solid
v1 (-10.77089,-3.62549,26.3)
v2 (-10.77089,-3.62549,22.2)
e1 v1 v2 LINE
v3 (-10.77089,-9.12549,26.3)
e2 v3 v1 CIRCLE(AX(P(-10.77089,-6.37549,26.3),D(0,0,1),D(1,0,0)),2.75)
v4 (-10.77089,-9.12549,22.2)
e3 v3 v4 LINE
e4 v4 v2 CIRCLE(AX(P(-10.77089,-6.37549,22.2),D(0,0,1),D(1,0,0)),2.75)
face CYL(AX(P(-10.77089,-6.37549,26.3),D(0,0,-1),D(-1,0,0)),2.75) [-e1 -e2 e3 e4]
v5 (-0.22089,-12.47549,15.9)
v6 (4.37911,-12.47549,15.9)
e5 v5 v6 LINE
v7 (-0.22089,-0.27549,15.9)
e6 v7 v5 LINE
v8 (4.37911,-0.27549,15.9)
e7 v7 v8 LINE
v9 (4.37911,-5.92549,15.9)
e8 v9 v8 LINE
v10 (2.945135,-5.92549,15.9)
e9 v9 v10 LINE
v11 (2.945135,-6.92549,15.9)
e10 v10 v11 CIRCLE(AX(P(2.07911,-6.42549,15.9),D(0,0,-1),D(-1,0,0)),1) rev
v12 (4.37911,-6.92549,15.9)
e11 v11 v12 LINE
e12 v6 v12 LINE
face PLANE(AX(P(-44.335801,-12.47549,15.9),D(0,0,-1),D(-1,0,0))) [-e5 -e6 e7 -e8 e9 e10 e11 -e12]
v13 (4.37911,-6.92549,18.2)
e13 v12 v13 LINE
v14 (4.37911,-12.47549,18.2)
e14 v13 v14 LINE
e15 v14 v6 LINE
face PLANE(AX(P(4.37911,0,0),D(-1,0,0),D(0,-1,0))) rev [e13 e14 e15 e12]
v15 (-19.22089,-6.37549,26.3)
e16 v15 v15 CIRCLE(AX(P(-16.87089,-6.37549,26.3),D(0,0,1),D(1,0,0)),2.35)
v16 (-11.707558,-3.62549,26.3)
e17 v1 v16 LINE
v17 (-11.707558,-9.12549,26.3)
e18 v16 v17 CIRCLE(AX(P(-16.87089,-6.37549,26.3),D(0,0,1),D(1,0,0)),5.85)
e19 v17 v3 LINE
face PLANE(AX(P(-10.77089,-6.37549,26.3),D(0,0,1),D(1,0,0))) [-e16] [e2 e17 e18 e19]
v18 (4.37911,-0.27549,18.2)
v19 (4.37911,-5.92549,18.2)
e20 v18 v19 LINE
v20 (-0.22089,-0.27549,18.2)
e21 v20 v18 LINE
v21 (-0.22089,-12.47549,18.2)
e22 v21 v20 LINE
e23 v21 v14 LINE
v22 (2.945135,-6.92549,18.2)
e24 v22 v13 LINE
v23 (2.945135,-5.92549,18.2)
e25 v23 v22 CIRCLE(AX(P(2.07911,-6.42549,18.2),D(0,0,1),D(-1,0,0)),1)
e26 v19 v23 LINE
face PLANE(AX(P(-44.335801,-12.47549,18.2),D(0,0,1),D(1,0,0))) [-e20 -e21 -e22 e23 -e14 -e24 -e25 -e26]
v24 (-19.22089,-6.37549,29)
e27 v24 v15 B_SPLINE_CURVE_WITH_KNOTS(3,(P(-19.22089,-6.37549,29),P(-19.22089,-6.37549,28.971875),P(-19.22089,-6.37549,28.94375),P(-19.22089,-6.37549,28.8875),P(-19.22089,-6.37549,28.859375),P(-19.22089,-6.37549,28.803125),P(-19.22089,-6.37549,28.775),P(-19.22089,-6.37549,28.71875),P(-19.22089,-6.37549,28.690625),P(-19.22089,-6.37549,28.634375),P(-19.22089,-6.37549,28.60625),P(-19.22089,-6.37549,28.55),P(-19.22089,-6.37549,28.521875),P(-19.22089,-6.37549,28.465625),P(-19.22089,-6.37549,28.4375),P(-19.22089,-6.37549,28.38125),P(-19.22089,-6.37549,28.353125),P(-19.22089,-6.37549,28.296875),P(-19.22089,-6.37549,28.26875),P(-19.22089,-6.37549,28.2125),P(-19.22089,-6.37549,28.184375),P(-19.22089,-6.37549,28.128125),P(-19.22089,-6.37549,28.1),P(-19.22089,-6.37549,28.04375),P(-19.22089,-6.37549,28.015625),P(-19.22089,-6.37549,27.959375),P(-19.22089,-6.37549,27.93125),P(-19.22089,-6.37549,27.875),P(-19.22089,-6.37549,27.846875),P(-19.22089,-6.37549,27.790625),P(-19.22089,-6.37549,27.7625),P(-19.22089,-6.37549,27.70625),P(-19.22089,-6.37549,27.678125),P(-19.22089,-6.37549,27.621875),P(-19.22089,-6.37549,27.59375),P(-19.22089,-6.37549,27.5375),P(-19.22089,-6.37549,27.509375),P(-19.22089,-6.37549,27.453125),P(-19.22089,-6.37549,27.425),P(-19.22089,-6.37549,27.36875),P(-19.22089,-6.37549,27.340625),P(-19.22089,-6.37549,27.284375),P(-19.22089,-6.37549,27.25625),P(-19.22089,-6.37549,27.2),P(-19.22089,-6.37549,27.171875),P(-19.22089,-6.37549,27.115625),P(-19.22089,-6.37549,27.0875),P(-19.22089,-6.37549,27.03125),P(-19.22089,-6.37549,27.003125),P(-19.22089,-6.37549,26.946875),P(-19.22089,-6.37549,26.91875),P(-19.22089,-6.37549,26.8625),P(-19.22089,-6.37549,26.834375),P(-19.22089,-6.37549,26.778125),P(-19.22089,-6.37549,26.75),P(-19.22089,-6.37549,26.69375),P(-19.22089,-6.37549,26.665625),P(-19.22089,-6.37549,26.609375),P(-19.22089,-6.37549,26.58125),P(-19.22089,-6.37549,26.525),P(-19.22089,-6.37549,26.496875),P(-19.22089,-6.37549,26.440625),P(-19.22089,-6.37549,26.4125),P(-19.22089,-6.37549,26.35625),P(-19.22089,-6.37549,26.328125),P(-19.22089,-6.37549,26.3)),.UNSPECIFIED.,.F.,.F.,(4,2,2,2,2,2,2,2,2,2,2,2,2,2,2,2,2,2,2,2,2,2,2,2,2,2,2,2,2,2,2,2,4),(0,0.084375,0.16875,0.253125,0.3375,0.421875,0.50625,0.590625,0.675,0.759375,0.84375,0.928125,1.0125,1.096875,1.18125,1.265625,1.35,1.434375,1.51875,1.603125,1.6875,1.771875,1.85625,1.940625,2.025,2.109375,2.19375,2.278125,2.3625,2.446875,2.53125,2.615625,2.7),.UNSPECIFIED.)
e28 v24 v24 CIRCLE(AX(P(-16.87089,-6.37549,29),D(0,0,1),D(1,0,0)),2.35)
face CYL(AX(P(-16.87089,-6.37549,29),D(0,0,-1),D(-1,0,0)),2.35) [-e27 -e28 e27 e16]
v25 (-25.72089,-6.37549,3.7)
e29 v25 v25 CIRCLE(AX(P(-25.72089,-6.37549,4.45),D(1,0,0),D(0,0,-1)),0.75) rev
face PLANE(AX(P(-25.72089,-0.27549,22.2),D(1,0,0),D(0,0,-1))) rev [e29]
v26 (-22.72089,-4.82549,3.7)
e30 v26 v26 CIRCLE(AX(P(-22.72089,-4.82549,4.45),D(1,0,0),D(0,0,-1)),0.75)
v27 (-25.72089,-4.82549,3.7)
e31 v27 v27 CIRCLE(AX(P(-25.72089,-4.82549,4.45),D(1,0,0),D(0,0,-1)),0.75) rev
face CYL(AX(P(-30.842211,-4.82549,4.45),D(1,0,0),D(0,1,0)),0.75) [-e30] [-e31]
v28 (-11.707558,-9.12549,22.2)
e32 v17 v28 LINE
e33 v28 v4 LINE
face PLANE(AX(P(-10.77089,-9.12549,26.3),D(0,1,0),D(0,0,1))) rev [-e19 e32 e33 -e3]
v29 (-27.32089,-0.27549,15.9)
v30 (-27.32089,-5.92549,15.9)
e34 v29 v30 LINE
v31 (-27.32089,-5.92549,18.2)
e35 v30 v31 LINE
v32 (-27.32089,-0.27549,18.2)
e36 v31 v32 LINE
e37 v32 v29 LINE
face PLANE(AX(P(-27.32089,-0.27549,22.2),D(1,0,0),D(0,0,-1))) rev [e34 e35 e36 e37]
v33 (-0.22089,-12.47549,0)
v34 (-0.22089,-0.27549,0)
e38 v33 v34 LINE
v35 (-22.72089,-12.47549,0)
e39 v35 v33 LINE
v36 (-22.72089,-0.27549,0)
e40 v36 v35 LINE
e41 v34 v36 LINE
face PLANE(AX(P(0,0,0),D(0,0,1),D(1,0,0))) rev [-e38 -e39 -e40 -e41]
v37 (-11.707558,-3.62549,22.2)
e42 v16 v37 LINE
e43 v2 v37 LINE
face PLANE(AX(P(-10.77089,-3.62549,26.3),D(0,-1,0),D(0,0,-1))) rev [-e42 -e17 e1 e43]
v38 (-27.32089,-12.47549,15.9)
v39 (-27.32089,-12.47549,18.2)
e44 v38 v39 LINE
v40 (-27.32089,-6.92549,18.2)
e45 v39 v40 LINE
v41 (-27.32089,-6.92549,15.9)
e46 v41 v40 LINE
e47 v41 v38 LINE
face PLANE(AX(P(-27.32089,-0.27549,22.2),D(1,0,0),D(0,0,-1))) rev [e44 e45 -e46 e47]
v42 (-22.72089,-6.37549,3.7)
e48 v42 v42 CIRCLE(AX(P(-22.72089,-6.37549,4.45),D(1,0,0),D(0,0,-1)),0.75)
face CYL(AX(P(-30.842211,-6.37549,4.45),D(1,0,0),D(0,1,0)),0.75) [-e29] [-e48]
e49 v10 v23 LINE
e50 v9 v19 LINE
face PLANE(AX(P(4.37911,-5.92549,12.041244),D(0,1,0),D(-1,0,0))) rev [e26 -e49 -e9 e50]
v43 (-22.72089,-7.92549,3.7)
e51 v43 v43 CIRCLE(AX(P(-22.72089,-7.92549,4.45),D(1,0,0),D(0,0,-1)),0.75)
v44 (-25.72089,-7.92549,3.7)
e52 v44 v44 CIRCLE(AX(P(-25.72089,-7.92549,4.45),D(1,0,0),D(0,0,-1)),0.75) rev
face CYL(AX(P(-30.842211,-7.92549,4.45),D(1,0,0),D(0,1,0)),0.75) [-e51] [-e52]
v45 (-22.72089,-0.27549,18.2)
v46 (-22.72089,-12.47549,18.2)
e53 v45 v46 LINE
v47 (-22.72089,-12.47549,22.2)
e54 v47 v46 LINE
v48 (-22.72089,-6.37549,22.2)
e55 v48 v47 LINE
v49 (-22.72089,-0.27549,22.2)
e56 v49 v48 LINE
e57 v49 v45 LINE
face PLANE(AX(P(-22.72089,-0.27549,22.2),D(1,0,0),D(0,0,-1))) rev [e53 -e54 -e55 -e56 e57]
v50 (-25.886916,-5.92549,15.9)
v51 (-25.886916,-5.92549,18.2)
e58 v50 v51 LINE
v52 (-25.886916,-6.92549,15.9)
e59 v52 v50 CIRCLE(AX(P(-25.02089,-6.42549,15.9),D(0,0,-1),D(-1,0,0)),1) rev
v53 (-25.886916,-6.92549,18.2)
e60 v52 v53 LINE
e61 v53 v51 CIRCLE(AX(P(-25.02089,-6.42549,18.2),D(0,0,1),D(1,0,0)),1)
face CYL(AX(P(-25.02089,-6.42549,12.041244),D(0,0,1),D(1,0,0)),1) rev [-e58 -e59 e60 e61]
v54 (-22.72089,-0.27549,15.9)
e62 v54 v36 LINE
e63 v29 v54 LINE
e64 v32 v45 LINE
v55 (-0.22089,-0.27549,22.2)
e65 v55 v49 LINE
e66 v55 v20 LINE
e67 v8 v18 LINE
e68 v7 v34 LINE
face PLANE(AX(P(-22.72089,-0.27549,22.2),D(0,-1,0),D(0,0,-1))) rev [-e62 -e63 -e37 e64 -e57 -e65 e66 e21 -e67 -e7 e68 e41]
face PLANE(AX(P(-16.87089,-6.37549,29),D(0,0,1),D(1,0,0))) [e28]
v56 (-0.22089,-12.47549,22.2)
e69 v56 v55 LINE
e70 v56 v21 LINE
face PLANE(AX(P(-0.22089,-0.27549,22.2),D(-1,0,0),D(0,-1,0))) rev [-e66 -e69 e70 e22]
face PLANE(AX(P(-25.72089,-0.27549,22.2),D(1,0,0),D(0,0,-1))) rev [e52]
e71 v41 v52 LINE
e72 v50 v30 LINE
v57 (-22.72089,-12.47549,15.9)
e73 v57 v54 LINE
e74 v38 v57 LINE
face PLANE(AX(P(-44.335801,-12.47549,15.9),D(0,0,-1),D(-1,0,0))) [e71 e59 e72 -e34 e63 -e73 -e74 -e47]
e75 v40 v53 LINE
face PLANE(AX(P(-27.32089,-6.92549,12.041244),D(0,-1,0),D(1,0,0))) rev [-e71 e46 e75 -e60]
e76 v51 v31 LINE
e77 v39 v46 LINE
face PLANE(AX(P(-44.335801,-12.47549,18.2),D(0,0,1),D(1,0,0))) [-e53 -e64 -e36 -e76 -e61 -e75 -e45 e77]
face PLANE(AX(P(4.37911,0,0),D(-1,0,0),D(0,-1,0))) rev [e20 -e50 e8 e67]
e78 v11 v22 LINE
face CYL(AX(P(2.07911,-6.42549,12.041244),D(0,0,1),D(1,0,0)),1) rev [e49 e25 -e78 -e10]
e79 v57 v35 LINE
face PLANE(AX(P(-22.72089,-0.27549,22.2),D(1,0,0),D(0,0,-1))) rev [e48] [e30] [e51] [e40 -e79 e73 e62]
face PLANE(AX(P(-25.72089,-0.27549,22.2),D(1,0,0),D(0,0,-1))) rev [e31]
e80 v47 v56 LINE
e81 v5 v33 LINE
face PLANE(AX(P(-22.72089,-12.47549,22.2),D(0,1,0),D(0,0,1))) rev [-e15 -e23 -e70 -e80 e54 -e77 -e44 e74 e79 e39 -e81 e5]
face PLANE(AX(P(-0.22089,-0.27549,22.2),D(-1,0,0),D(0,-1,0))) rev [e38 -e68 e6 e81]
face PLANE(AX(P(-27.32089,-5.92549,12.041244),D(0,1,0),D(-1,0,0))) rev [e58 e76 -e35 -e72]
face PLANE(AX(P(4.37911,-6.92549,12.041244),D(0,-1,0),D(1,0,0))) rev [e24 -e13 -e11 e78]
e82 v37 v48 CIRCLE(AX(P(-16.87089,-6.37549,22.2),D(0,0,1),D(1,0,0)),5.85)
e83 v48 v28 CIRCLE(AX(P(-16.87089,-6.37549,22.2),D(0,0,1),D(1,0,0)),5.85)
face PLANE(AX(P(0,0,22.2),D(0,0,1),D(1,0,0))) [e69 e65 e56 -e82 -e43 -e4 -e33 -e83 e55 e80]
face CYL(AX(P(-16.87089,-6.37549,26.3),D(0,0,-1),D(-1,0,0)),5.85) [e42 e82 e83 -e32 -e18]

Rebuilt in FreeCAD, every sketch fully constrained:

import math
import FreeCAD as App
import Part
import Sketcher

V = App.Vector
Q = App.Units.Quantity


def add_polygon(sketch, points):
    """Adds a closed chain of lines whose ends are joined by coincident constraints."""
    first, n = sketch.GeometryCount, len(points)
    for a, b in zip(points, points[1:] + points[:1]):
        sketch.addGeometry(Part.LineSegment(App.Vector(*a, 0), App.Vector(*b, 0)), False)
    for i in range(n):
        sketch.addConstraint(Sketcher.Constraint("Coincident", first + i, 2, first + (i + 1) % n, 1))

doc = App.newDocument("Part")
body = doc.addObject("PartDesign::Body", "Body")

sketch1 = body.newObject("Sketcher::SketchObject", "Sketch")
sketch1.AttachmentSupport = (doc.getObject("XY_Plane"), [""])
sketch1.MapMode = "FlatFace"
add_polygon(sketch1, [(-23, 0), (-23, -12), (0, -12), (0, 0)])
sketch1.addConstraint([
    Sketcher.Constraint("Vertical", 0),
    Sketcher.Constraint("Horizontal", 1),
    Sketcher.Constraint("Vertical", 2),
    Sketcher.Constraint("Horizontal", 3),
    Sketcher.Constraint("DistanceX", 1, 1, 1, 2, Q("22.5 mm")),
    Sketcher.Constraint("DistanceY", 0, 2, 0, 1, Q("12.2 mm")),
    Sketcher.Constraint("DistanceX", 0, 2, -1, 1, Q("22.72089 mm")),
    Sketcher.Constraint("DistanceY", 0, 2, -1, 1, Q("12.47549 mm")),
])
pad1 = body.newObject("PartDesign::Pad", "Pad")
pad1.Profile = sketch1
pad1.Length = 22.2

sketch2 = body.newObject("Sketcher::SketchObject", "Sketch001")
sketch2.AttachmentSupport = (doc.getObject("YZ_Plane"), [""])
sketch2.MapMode = "FlatFace"
sketch2.AttachmentOffset = App.Placement(V(0, 0, -0.22089), App.Rotation())
add_polygon(sketch2, [(-0.3, 18.2), (-12.5, 18.2), (-12.5, 15.9), (-0.3, 15.9)])
sketch2.addConstraint([
    Sketcher.Constraint("Horizontal", 0),
    Sketcher.Constraint("Vertical", 1),
    Sketcher.Constraint("Horizontal", 2),
    Sketcher.Constraint("Vertical", 3),
    Sketcher.Constraint("DistanceX", 0, 2, 0, 1, Q("12.2 mm")),
    Sketcher.Constraint("DistanceY", 1, 2, 1, 1, Q("2.3 mm")),
    Sketcher.Constraint("DistanceY", -1, 1, 0, 2, Q("18.2 mm")),
    Sketcher.Constraint("DistanceX", 0, 2, -1, 1, Q("12.47549 mm")),
])
pad2 = body.newObject("PartDesign::Pad", "Pad001")
pad2.Profile = sketch2
pad2.Type = "TwoLengths"
pad2.Length = 4.6
pad2.Length2 = 27.1

sketch3 = body.newObject("Sketcher::SketchObject", "Sketch002")
sketch3.AttachmentSupport = (doc.getObject("XY_Plane"), [""])
sketch3.MapMode = "FlatFace"
sketch3.AttachmentOffset = App.Placement(V(0, 0, 22.2), App.Rotation())
sketch3.addGeometry([
    Part.LineSegment(V(-11.7, -9.1, 0), V(-10.8, -9.1, 0)),
    Part.ArcOfCircle(Part.Circle(V(-10.8, -6.4, 0), V(0, 0, 1), 2.8), math.radians(-90), math.radians(90)),
    Part.LineSegment(V(-10.8, -3.6, 0), V(-11.7, -3.6, 0)),
    Part.ArcOfCircle(Part.Circle(V(-16.9, -6.4, 0), V(0, 0, 1), 5.8), math.radians(28), math.radians(332)),
], False)
sketch3.addConstraint([
    Sketcher.Constraint("Tangent", 0, 2, 1, 1),
    Sketcher.Constraint("Tangent", 1, 2, 2, 1),
    Sketcher.Constraint("Coincident", 2, 2, 3, 1),
    Sketcher.Constraint("Coincident", 3, 2, 0, 1),
    Sketcher.Constraint("Horizontal", 0),
    Sketcher.Constraint("Horizontal", 2),
    Sketcher.Constraint("Horizontal", 1, 3, 3, 3),
    Sketcher.Constraint("Radius", 1, Q("2.75 mm")),
    Sketcher.Constraint("Radius", 3, Q("5.85 mm")),
    Sketcher.Constraint("DistanceX", 3, 3, 1, 3, Q("6.1 mm")),
    Sketcher.Constraint("DistanceX", 1, 3, -1, 1, Q("10.77089 mm")),
    Sketcher.Constraint("DistanceY", 1, 3, -1, 1, Q("6.37549 mm")),
])
pad3 = body.newObject("PartDesign::Pad", "Pad002")
pad3.Profile = sketch3
pad3.Length = 4.1

sketch4 = body.newObject("Sketcher::SketchObject", "Sketch003")
sketch4.AttachmentSupport = (doc.getObject("XY_Plane"), [""])
sketch4.MapMode = "FlatFace"
sketch4.AttachmentOffset = App.Placement(V(0, 0, 26.3), App.Rotation())
sketch4.addGeometry(Part.Circle(V(-16.9, -6.4, 0), V(0, 0, 1), 2.4), False)
sketch4.addConstraint([
    Sketcher.Constraint("Diameter", 0, Q("4.7 mm")),
    Sketcher.Constraint("DistanceX", 0, 3, -1, 1, Q("16.87089 mm")),
    Sketcher.Constraint("DistanceY", 0, 3, -1, 1, Q("6.37549 mm")),
])
pad4 = body.newObject("PartDesign::Pad", "Pad003")
pad4.Profile = sketch4
pad4.Length = 2.7

sketch5 = body.newObject("Sketcher::SketchObject", "Sketch004")
sketch5.AttachmentSupport = (doc.getObject("XY_Plane"), [""])
sketch5.MapMode = "FlatFace"
sketch5.AttachmentOffset = App.Placement(V(0, 0, 18.2), App.Rotation())
sketch5.addGeometry([
    Part.LineSegment(V(-27.3, -5.9, 0), V(-27.3, -6.9, 0)),
    Part.LineSegment(V(-27.3, -6.9, 0), V(-25.9, -6.9, 0)),
    Part.ArcOfCircle(Part.Circle(V(-25, -6.4, 0), V(0, 0, 1), 1), math.radians(-150), math.radians(150)),
    Part.LineSegment(V(-25.9, -5.9, 0), V(-27.3, -5.9, 0)),
    Part.LineSegment(V(2.9, -6.9, 0), V(4.4, -6.9, 0)),
    Part.LineSegment(V(4.4, -6.9, 0), V(4.4, -5.9, 0)),
    Part.LineSegment(V(4.4, -5.9, 0), V(2.9, -5.9, 0)),
    Part.ArcOfCircle(Part.Circle(V(2.1, -6.4, 0), V(0, 0, 1), 1), math.radians(30), math.radians(330)),
], False)
sketch5.addConstraint([
    Sketcher.Constraint("Coincident", 0, 2, 1, 1),
    Sketcher.Constraint("Coincident", 1, 2, 2, 1),
    Sketcher.Constraint("Coincident", 2, 2, 3, 1),
    Sketcher.Constraint("Coincident", 3, 2, 0, 1),
    Sketcher.Constraint("Coincident", 4, 2, 5, 1),
    Sketcher.Constraint("Coincident", 5, 2, 6, 1),
    Sketcher.Constraint("Coincident", 6, 2, 7, 1),
    Sketcher.Constraint("Coincident", 7, 2, 4, 1),
    Sketcher.Constraint("Vertical", 0),
    Sketcher.Constraint("Horizontal", 1),
    Sketcher.Constraint("Horizontal", 3),
    Sketcher.Constraint("Horizontal", 4),
    Sketcher.Constraint("Vertical", 5),
    Sketcher.Constraint("Horizontal", 6),
    Sketcher.Constraint("Equal", 2, 7),
    Sketcher.Constraint("Horizontal", 2, 3, 7, 3),
    Sketcher.Constraint("Horizontal", 1, 2, 4, 2),
    Sketcher.Constraint("Horizontal", 3, 2, 5, 2),
    Sketcher.Constraint("Vertical", 1, 2, 2, 2),
    Sketcher.Constraint("Equal", 3, 4),
    Sketcher.Constraint("Radius", 2, Q("1 mm")),
    Sketcher.Constraint("DistanceY", 0, 2, 0, 1, Q("1 mm")),
    Sketcher.Constraint("DistanceX", 2, 3, 7, 3, Q("27.1 mm")),
    Sketcher.Constraint("DistanceX", 0, 2, 2, 3, Q("2.3 mm")),
    Sketcher.Constraint("DistanceX", 2, 3, -1, 1, Q("25.02089 mm")),
    Sketcher.Constraint("DistanceY", 2, 3, -1, 1, Q("6.42549 mm")),
])
pocket1 = body.newObject("PartDesign::Pocket", "Pocket")
pocket1.Profile = sketch5
pocket1.Length = 2.3

sketch6 = body.newObject("Sketcher::SketchObject", "Sketch005")
sketch6.AttachmentSupport = (doc.getObject("YZ_Plane"), [""])
sketch6.MapMode = "FlatFace"
sketch6.AttachmentOffset = App.Placement(V(0, 0, -0.22089), App.Rotation())
sketch6.addGeometry([
    Part.Circle(V(-6.4, 4.5, 0), V(0, 0, 1), 0.8),
    Part.Circle(V(-4.8, 4.5, 0), V(0, 0, 1), 0.8),
    Part.Circle(V(-7.9, 4.5, 0), V(0, 0, 1), 0.8),
], False)
sketch6.addConstraint([
    Sketcher.Constraint("Equal", 0, 1),
    Sketcher.Constraint("Equal", 1, 2),
    Sketcher.Constraint("Horizontal", 0, 3, 1, 3),
    Sketcher.Constraint("Horizontal", 1, 3, 2, 3),
    Sketcher.Constraint("Diameter", 0, Q("1.5 mm")),
    Sketcher.Constraint("DistanceX", 2, 3, 1, 3, Q("3.1 mm")),
    Sketcher.Constraint("DistanceY", -1, 1, 0, 3, Q("4.45 mm")),
    Sketcher.Constraint("DistanceX", 0, 3, 1, 3, Q("1.55 mm")),
    Sketcher.Constraint("DistanceX", 0, 3, -1, 1, Q("6.37549 mm")),
])
pad5 = body.newObject("PartDesign::Pad", "Pad004")
pad5.Profile = sketch6
pad5.Length = 25.5
pad5.Reversed = True

doc.recompute()
